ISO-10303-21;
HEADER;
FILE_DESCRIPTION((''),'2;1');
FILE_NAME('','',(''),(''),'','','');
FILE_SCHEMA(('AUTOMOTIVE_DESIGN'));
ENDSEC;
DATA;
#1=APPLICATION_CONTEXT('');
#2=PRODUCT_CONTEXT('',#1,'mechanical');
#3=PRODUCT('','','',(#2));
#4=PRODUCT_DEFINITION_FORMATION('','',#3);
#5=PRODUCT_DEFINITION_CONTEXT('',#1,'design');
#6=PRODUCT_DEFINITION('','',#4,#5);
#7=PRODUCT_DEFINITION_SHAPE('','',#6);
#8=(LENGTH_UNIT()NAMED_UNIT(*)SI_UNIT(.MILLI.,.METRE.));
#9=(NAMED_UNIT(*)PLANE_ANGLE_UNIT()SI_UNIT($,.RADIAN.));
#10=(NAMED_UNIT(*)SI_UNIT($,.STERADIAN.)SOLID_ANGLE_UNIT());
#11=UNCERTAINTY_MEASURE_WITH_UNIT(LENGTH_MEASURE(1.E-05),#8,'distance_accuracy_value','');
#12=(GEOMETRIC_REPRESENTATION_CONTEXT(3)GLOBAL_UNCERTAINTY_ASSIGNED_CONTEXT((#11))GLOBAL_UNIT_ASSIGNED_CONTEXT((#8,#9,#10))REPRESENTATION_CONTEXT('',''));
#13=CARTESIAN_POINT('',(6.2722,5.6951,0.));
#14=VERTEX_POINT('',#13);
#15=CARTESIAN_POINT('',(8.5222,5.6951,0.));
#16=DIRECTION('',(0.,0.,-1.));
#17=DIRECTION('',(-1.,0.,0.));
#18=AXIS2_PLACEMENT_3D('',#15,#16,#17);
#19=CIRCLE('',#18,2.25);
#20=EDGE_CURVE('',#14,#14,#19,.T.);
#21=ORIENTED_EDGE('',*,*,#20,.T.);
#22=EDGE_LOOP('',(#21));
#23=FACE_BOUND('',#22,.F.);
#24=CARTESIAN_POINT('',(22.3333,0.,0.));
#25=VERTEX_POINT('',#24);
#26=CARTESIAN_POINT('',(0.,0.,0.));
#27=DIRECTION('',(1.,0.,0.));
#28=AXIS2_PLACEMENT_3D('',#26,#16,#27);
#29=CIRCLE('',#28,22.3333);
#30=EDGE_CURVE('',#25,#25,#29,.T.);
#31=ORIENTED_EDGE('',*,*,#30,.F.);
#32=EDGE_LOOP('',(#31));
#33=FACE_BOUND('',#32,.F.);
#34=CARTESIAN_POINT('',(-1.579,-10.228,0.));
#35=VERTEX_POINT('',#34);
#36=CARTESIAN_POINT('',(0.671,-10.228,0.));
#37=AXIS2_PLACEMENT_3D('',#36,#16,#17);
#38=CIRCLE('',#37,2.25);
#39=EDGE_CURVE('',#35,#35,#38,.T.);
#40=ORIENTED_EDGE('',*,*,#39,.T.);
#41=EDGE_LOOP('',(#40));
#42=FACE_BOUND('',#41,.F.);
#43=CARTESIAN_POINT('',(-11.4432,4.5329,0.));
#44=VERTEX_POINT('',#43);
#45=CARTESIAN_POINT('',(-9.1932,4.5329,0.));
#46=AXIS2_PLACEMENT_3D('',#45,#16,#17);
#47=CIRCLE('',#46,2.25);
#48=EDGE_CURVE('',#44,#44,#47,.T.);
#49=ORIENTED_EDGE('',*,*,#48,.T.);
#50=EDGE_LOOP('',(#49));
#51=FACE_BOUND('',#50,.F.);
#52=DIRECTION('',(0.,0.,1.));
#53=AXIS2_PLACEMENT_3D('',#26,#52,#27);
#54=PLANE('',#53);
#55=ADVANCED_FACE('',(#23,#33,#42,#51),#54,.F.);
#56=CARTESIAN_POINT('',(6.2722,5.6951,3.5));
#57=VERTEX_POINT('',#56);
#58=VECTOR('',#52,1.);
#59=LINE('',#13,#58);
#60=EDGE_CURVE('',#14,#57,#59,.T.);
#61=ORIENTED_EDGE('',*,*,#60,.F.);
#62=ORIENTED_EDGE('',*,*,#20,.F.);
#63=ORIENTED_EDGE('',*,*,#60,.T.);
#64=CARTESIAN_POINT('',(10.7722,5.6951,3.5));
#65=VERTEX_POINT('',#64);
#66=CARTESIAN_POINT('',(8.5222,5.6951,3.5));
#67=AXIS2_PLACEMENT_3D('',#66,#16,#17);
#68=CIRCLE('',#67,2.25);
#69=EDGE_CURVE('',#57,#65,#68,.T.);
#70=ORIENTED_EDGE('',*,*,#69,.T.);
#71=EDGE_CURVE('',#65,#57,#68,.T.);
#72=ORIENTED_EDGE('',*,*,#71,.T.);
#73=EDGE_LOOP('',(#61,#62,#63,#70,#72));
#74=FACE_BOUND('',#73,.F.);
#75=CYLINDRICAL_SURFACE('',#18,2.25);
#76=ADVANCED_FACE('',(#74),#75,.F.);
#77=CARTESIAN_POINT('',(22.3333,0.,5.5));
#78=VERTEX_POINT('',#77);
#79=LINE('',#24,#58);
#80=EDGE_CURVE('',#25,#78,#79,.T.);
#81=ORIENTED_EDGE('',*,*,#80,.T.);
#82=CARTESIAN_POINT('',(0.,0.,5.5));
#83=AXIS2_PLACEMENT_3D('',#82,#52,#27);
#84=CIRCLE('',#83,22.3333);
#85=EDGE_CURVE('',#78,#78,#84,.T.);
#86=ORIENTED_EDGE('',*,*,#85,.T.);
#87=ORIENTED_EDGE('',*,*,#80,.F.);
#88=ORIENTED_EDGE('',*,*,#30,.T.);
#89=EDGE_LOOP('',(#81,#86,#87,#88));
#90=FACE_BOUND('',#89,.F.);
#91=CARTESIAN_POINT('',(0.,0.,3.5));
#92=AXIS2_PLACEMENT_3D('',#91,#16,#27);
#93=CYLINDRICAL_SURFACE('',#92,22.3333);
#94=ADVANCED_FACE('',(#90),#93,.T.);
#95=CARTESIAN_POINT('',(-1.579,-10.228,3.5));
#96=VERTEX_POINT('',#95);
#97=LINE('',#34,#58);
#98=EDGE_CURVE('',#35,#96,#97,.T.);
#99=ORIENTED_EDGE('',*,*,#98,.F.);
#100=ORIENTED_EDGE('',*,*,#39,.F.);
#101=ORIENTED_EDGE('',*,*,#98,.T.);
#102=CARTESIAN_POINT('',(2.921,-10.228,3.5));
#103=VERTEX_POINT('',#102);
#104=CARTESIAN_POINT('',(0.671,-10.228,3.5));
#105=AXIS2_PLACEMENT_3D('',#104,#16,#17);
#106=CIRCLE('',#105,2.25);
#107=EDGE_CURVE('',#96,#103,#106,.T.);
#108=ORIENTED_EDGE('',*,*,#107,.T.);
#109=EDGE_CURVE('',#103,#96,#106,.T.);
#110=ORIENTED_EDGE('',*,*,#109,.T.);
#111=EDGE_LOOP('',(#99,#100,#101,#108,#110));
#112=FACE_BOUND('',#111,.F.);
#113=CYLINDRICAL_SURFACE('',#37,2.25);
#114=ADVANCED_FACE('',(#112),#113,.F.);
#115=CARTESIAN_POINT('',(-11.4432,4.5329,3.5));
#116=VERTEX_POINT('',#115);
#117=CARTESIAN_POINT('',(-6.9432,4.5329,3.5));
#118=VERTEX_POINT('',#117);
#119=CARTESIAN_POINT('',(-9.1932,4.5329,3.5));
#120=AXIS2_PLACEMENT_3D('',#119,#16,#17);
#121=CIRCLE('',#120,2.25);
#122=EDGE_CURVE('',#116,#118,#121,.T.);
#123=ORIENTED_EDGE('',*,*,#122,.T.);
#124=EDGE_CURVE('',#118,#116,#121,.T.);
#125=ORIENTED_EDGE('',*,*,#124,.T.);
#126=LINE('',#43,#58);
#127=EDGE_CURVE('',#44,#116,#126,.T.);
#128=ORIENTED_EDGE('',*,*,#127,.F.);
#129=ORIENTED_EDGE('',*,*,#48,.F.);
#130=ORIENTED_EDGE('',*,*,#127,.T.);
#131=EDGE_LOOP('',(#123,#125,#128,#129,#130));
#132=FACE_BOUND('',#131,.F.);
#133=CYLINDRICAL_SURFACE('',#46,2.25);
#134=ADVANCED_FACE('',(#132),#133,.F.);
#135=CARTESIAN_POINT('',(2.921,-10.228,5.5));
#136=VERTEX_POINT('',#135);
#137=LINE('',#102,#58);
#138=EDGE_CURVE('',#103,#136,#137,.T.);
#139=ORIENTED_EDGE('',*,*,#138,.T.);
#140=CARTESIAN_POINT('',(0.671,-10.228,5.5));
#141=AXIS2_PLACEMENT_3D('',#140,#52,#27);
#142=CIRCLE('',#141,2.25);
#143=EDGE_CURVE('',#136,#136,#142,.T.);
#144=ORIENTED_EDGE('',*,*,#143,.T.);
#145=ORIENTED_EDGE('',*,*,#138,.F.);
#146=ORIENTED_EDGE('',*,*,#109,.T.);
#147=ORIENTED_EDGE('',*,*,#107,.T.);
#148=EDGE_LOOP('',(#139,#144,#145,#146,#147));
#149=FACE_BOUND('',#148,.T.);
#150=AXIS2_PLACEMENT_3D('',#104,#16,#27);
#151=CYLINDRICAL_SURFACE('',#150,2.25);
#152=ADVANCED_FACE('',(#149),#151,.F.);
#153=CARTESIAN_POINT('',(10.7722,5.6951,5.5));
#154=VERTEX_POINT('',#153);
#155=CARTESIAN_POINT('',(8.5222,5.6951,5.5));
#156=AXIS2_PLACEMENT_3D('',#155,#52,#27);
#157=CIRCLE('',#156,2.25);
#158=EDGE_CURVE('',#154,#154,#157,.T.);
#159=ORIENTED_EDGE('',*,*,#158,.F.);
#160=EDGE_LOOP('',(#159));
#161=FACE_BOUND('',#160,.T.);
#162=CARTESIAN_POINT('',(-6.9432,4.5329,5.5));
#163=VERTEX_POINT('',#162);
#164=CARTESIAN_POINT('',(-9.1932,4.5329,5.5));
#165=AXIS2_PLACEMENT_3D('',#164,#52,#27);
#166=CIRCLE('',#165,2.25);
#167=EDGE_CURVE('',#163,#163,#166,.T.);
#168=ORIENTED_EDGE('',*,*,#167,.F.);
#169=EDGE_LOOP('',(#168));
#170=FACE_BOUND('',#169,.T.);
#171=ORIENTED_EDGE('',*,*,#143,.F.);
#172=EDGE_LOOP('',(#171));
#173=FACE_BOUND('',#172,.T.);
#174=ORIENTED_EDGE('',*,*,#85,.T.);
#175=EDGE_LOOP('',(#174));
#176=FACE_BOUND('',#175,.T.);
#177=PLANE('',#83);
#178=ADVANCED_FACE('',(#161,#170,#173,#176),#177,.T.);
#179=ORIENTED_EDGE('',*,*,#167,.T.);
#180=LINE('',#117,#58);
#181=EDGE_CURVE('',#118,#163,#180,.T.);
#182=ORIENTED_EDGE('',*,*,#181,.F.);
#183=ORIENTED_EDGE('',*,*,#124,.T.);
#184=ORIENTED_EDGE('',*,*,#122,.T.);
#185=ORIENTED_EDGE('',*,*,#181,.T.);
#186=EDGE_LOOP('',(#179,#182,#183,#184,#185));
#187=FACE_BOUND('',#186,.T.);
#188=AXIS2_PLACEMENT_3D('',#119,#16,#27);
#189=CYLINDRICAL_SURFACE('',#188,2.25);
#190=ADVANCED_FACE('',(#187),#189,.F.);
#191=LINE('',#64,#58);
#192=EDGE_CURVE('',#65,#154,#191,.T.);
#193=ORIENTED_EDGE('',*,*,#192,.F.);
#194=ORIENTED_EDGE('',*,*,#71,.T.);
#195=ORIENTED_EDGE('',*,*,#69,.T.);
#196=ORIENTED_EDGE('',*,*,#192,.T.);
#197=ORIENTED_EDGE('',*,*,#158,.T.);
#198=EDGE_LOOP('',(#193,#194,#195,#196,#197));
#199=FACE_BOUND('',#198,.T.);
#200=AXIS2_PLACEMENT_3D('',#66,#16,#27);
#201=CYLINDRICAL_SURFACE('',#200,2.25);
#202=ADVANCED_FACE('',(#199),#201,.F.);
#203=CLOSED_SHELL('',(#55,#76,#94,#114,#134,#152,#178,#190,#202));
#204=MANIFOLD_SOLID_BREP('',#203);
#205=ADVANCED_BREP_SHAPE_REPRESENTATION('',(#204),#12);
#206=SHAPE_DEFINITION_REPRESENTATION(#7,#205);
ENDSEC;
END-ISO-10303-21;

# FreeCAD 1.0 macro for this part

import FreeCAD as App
import Part
import Sketcher

V = App.Vector

doc = App.newDocument("Part")
body = doc.addObject("PartDesign::Body", "Body")

# Sketch on XY plane
sketch1 = body.newObject("Sketcher::SketchObject", "Sketch")
sketch1.AttachmentSupport = (doc.getObject("XY_Plane"), [""])
sketch1.MapMode = "FlatFace"
sketch1.addGeometry([
    Part.Circle(V(0, 0, 0), V(0, 0, 1), 22.3),
    Part.Circle(V(0.7, -10.2, 0), V(0, 0, 1), 2),
    Part.Circle(V(-9.2, 4.5, 0), V(0, 0, 1), 2),
    Part.Circle(V(8.5, 5.7, 0), V(0, 0, 1), 2),
], False)
sketch1.addConstraint([
    Sketcher.Constraint("Coincident", 0, 3, -1, 1),
    Sketcher.Constraint("Equal", 1, 2),
    Sketcher.Constraint("Equal", 2, 3),
    Sketcher.Constraint("Diameter", 1, 4.0),
    Sketcher.Constraint("Diameter", 0, 44.6666),
    Sketcher.Constraint("DistanceX", -1, 1, 1, 3, 0.671),
    Sketcher.Constraint("DistanceY", 1, 3, -1, 1, 10.228),
    Sketcher.Constraint("DistanceY", -1, 1, 2, 3, 4.533),
    Sketcher.Constraint("DistanceY", -1, 1, 3, 3, 5.695),
    Sketcher.Constraint("DistanceX", 2, 3, -1, 1, 9.1932),
    Sketcher.Constraint("DistanceX", -1, 1, 3, 3, 8.5222),
])
pad1 = body.newObject("PartDesign::Pad", "Pad")
pad1.Profile = sketch1
pad1.Length = 3.5

# Sketch on XY plane
sketch2 = body.newObject("Sketcher::SketchObject", "Sketch001")
sketch2.AttachmentSupport = (doc.getObject("XY_Plane"), [""])
sketch2.MapMode = "FlatFace"
sketch2.addGeometry([
    Part.Circle(V(8.5, 5.7, 0), V(0, 0, 1), 2.2),
    Part.Circle(V(0.7, -10.2, 0), V(0, 0, 1), 2.2),
    Part.Circle(V(-9.2, 4.5, 0), V(0, 0, 1), 2.2),
], False)
sketch2.addConstraint([
    Sketcher.Constraint("Equal", 0, 1),
    Sketcher.Constraint("Equal", 1, 2),
    Sketcher.Constraint("Diameter", 0, 4.5),
    Sketcher.Constraint("DistanceY", -1, 1, 0, 3, 5.695),
    Sketcher.Constraint("DistanceX", -1, 1, 1, 3, 0.671),
    Sketcher.Constraint("DistanceY", 1, 3, -1, 1, 10.228),
    Sketcher.Constraint("DistanceY", -1, 1, 2, 3, 4.533),
    Sketcher.Constraint("DistanceX", -1, 1, 0, 3, 8.5222),
    Sketcher.Constraint("DistanceX", 2, 3, -1, 1, 9.1932),
])
pocket1 = body.newObject("PartDesign::Pocket", "Pocket")
pocket1.Profile = sketch2
pocket1.Type = "ThroughAll"
pocket1.Reversed = True

# Sketch on XY plane
sketch3 = body.newObject("Sketcher::SketchObject", "Sketch002")
sketch3.AttachmentSupport = (doc.getObject("XY_Plane"), [""])
sketch3.MapMode = "FlatFace"
sketch3.AttachmentOffset = App.Placement(V(0, 0, 3.5), App.Rotation())
sketch3.addGeometry([
    Part.Circle(V(0, 0, 0), V(0, 0, 1), 22.3),
    Part.Circle(V(0.7, -10.2, 0), V(0, 0, 1), 2.2),
    Part.Circle(V(-9.2, 4.5, 0), V(0, 0, 1), 2.2),
    Part.Circle(V(8.5, 5.7, 0), V(0, 0, 1), 2.2),
], False)
sketch3.addConstraint([
    Sketcher.Constraint("Coincident", 0, 3, -1, 1),
    Sketcher.Constraint("Equal", 1, 2),
    Sketcher.Constraint("Equal", 2, 3),
    Sketcher.Constraint("Diameter", 1, 4.5),
    Sketcher.Constraint("Diameter", 0, 44.6666),
    Sketcher.Constraint("DistanceX", -1, 1, 1, 3, 0.671),
    Sketcher.Constraint("DistanceY", 1, 3, -1, 1, 10.228),
    Sketcher.Constraint("DistanceY", -1, 1, 2, 3, 4.533),
    Sketcher.Constraint("DistanceY", -1, 1, 3, 3, 5.695),
    Sketcher.Constraint("DistanceX", 2, 3, -1, 1, 9.1932),
    Sketcher.Constraint("DistanceX", -1, 1, 3, 3, 8.5222),
])
pad2 = body.newObject("PartDesign::Pad", "Pad001")
pad2.Profile = sketch3
pad2.Length = 2

doc.recompute()
